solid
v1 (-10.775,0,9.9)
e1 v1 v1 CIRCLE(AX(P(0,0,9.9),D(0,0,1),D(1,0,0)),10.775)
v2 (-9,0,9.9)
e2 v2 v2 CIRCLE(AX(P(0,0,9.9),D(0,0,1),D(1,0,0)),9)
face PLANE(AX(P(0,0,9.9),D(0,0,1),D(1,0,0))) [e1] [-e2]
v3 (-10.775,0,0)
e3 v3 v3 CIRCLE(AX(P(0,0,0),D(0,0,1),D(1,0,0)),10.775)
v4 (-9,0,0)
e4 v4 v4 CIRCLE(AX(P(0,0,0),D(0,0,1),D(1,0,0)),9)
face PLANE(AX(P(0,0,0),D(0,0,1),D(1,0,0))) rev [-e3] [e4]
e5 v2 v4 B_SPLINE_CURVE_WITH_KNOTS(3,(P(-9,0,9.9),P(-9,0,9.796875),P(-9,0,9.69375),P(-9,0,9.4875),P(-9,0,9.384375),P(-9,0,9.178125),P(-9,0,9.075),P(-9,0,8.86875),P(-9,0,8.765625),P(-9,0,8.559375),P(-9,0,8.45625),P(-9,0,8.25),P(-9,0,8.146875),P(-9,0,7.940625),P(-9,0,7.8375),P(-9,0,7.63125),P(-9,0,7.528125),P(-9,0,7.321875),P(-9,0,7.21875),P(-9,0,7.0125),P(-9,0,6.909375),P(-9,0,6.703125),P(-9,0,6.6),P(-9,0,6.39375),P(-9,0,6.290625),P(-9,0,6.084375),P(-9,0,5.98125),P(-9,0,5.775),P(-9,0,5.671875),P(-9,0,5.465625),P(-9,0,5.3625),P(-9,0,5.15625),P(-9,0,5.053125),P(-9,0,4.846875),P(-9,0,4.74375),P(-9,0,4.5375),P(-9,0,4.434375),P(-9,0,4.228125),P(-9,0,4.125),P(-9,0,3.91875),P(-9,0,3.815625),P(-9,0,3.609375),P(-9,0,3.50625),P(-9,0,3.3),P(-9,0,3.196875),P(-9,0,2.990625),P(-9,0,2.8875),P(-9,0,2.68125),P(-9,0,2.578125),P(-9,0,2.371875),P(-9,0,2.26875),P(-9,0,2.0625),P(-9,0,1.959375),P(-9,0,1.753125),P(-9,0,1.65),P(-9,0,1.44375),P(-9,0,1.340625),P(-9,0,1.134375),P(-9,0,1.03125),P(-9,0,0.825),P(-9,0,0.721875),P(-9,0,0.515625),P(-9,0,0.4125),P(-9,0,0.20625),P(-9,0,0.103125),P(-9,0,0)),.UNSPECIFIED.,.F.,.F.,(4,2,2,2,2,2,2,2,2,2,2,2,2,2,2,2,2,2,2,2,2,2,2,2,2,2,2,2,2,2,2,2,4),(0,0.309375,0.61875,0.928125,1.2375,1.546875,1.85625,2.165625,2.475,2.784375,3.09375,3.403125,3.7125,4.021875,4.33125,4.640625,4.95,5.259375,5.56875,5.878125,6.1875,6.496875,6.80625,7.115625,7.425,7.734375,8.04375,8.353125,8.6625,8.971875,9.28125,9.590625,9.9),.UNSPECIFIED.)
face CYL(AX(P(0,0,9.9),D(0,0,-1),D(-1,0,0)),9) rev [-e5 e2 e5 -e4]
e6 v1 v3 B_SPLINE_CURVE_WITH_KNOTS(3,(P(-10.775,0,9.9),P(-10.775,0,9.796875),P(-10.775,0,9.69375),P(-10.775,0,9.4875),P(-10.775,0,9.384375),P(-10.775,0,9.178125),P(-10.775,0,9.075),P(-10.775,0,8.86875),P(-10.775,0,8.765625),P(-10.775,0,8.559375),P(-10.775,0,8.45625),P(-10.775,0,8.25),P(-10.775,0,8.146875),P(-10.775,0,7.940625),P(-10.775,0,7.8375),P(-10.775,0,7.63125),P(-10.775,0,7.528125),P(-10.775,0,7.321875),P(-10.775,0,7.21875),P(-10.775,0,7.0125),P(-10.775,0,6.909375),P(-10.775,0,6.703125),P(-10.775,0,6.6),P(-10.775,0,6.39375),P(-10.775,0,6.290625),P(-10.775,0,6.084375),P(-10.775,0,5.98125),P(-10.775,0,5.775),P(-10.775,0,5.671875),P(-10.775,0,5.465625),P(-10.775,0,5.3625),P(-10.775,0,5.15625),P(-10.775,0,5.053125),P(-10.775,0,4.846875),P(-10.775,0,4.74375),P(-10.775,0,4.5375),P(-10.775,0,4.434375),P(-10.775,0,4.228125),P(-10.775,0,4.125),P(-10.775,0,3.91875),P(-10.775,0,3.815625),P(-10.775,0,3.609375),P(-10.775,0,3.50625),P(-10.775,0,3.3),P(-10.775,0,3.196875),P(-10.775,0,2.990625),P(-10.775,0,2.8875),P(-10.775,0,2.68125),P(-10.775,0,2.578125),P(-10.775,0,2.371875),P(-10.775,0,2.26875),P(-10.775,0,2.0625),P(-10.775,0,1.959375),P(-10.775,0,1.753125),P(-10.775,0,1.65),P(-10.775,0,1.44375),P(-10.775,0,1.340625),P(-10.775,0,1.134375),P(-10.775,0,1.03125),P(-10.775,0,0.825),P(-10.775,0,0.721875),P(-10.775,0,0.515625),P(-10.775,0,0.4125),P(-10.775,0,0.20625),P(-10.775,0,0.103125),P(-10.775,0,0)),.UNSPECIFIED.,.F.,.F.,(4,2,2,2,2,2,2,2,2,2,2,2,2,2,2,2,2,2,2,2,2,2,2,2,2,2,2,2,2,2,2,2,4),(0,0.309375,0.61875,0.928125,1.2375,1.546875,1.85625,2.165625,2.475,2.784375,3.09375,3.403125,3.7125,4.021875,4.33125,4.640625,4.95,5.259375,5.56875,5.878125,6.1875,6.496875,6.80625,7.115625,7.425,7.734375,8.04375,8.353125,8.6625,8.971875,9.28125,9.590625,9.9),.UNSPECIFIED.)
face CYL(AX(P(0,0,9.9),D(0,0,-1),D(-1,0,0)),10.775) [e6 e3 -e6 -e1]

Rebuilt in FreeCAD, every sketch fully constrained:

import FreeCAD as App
import Part
import Sketcher
from FreeCAD import Vector

doc = App.newDocument("Part")
body = doc.addObject("PartDesign::Body", "Body")

sketch1 = doc.addObject("Sketcher::SketchObject", "Sketch")
body.addObject(sketch1)
sketch1.AttachmentSupport = (doc.XY_Plane, [""])
sketch1.MapMode = "FlatFace"
sketch1.addGeometry(Part.Circle(Vector(0, 0, 0), Vector(0, 0, 1), 11), False)
sketch1.addGeometry(Part.Circle(Vector(0, 0, 0), Vector(0, 0, 1), 9), False)
sketch1.addConstraint(Sketcher.Constraint("Coincident", 0, 3, -1, 1))
sketch1.addConstraint(Sketcher.Constraint("Coincident", 1, 3, -1, 1))
sketch1.addConstraint(Sketcher.Constraint("Diameter", 1, 18.0))
sketch1.addConstraint(Sketcher.Constraint("Diameter", 0, 21.55))
pad1 = doc.addObject("PartDesign::Pad", "Pad")
body.addObject(pad1)
pad1.Profile = sketch1
pad1.Length = 9.9

doc.recompute()
